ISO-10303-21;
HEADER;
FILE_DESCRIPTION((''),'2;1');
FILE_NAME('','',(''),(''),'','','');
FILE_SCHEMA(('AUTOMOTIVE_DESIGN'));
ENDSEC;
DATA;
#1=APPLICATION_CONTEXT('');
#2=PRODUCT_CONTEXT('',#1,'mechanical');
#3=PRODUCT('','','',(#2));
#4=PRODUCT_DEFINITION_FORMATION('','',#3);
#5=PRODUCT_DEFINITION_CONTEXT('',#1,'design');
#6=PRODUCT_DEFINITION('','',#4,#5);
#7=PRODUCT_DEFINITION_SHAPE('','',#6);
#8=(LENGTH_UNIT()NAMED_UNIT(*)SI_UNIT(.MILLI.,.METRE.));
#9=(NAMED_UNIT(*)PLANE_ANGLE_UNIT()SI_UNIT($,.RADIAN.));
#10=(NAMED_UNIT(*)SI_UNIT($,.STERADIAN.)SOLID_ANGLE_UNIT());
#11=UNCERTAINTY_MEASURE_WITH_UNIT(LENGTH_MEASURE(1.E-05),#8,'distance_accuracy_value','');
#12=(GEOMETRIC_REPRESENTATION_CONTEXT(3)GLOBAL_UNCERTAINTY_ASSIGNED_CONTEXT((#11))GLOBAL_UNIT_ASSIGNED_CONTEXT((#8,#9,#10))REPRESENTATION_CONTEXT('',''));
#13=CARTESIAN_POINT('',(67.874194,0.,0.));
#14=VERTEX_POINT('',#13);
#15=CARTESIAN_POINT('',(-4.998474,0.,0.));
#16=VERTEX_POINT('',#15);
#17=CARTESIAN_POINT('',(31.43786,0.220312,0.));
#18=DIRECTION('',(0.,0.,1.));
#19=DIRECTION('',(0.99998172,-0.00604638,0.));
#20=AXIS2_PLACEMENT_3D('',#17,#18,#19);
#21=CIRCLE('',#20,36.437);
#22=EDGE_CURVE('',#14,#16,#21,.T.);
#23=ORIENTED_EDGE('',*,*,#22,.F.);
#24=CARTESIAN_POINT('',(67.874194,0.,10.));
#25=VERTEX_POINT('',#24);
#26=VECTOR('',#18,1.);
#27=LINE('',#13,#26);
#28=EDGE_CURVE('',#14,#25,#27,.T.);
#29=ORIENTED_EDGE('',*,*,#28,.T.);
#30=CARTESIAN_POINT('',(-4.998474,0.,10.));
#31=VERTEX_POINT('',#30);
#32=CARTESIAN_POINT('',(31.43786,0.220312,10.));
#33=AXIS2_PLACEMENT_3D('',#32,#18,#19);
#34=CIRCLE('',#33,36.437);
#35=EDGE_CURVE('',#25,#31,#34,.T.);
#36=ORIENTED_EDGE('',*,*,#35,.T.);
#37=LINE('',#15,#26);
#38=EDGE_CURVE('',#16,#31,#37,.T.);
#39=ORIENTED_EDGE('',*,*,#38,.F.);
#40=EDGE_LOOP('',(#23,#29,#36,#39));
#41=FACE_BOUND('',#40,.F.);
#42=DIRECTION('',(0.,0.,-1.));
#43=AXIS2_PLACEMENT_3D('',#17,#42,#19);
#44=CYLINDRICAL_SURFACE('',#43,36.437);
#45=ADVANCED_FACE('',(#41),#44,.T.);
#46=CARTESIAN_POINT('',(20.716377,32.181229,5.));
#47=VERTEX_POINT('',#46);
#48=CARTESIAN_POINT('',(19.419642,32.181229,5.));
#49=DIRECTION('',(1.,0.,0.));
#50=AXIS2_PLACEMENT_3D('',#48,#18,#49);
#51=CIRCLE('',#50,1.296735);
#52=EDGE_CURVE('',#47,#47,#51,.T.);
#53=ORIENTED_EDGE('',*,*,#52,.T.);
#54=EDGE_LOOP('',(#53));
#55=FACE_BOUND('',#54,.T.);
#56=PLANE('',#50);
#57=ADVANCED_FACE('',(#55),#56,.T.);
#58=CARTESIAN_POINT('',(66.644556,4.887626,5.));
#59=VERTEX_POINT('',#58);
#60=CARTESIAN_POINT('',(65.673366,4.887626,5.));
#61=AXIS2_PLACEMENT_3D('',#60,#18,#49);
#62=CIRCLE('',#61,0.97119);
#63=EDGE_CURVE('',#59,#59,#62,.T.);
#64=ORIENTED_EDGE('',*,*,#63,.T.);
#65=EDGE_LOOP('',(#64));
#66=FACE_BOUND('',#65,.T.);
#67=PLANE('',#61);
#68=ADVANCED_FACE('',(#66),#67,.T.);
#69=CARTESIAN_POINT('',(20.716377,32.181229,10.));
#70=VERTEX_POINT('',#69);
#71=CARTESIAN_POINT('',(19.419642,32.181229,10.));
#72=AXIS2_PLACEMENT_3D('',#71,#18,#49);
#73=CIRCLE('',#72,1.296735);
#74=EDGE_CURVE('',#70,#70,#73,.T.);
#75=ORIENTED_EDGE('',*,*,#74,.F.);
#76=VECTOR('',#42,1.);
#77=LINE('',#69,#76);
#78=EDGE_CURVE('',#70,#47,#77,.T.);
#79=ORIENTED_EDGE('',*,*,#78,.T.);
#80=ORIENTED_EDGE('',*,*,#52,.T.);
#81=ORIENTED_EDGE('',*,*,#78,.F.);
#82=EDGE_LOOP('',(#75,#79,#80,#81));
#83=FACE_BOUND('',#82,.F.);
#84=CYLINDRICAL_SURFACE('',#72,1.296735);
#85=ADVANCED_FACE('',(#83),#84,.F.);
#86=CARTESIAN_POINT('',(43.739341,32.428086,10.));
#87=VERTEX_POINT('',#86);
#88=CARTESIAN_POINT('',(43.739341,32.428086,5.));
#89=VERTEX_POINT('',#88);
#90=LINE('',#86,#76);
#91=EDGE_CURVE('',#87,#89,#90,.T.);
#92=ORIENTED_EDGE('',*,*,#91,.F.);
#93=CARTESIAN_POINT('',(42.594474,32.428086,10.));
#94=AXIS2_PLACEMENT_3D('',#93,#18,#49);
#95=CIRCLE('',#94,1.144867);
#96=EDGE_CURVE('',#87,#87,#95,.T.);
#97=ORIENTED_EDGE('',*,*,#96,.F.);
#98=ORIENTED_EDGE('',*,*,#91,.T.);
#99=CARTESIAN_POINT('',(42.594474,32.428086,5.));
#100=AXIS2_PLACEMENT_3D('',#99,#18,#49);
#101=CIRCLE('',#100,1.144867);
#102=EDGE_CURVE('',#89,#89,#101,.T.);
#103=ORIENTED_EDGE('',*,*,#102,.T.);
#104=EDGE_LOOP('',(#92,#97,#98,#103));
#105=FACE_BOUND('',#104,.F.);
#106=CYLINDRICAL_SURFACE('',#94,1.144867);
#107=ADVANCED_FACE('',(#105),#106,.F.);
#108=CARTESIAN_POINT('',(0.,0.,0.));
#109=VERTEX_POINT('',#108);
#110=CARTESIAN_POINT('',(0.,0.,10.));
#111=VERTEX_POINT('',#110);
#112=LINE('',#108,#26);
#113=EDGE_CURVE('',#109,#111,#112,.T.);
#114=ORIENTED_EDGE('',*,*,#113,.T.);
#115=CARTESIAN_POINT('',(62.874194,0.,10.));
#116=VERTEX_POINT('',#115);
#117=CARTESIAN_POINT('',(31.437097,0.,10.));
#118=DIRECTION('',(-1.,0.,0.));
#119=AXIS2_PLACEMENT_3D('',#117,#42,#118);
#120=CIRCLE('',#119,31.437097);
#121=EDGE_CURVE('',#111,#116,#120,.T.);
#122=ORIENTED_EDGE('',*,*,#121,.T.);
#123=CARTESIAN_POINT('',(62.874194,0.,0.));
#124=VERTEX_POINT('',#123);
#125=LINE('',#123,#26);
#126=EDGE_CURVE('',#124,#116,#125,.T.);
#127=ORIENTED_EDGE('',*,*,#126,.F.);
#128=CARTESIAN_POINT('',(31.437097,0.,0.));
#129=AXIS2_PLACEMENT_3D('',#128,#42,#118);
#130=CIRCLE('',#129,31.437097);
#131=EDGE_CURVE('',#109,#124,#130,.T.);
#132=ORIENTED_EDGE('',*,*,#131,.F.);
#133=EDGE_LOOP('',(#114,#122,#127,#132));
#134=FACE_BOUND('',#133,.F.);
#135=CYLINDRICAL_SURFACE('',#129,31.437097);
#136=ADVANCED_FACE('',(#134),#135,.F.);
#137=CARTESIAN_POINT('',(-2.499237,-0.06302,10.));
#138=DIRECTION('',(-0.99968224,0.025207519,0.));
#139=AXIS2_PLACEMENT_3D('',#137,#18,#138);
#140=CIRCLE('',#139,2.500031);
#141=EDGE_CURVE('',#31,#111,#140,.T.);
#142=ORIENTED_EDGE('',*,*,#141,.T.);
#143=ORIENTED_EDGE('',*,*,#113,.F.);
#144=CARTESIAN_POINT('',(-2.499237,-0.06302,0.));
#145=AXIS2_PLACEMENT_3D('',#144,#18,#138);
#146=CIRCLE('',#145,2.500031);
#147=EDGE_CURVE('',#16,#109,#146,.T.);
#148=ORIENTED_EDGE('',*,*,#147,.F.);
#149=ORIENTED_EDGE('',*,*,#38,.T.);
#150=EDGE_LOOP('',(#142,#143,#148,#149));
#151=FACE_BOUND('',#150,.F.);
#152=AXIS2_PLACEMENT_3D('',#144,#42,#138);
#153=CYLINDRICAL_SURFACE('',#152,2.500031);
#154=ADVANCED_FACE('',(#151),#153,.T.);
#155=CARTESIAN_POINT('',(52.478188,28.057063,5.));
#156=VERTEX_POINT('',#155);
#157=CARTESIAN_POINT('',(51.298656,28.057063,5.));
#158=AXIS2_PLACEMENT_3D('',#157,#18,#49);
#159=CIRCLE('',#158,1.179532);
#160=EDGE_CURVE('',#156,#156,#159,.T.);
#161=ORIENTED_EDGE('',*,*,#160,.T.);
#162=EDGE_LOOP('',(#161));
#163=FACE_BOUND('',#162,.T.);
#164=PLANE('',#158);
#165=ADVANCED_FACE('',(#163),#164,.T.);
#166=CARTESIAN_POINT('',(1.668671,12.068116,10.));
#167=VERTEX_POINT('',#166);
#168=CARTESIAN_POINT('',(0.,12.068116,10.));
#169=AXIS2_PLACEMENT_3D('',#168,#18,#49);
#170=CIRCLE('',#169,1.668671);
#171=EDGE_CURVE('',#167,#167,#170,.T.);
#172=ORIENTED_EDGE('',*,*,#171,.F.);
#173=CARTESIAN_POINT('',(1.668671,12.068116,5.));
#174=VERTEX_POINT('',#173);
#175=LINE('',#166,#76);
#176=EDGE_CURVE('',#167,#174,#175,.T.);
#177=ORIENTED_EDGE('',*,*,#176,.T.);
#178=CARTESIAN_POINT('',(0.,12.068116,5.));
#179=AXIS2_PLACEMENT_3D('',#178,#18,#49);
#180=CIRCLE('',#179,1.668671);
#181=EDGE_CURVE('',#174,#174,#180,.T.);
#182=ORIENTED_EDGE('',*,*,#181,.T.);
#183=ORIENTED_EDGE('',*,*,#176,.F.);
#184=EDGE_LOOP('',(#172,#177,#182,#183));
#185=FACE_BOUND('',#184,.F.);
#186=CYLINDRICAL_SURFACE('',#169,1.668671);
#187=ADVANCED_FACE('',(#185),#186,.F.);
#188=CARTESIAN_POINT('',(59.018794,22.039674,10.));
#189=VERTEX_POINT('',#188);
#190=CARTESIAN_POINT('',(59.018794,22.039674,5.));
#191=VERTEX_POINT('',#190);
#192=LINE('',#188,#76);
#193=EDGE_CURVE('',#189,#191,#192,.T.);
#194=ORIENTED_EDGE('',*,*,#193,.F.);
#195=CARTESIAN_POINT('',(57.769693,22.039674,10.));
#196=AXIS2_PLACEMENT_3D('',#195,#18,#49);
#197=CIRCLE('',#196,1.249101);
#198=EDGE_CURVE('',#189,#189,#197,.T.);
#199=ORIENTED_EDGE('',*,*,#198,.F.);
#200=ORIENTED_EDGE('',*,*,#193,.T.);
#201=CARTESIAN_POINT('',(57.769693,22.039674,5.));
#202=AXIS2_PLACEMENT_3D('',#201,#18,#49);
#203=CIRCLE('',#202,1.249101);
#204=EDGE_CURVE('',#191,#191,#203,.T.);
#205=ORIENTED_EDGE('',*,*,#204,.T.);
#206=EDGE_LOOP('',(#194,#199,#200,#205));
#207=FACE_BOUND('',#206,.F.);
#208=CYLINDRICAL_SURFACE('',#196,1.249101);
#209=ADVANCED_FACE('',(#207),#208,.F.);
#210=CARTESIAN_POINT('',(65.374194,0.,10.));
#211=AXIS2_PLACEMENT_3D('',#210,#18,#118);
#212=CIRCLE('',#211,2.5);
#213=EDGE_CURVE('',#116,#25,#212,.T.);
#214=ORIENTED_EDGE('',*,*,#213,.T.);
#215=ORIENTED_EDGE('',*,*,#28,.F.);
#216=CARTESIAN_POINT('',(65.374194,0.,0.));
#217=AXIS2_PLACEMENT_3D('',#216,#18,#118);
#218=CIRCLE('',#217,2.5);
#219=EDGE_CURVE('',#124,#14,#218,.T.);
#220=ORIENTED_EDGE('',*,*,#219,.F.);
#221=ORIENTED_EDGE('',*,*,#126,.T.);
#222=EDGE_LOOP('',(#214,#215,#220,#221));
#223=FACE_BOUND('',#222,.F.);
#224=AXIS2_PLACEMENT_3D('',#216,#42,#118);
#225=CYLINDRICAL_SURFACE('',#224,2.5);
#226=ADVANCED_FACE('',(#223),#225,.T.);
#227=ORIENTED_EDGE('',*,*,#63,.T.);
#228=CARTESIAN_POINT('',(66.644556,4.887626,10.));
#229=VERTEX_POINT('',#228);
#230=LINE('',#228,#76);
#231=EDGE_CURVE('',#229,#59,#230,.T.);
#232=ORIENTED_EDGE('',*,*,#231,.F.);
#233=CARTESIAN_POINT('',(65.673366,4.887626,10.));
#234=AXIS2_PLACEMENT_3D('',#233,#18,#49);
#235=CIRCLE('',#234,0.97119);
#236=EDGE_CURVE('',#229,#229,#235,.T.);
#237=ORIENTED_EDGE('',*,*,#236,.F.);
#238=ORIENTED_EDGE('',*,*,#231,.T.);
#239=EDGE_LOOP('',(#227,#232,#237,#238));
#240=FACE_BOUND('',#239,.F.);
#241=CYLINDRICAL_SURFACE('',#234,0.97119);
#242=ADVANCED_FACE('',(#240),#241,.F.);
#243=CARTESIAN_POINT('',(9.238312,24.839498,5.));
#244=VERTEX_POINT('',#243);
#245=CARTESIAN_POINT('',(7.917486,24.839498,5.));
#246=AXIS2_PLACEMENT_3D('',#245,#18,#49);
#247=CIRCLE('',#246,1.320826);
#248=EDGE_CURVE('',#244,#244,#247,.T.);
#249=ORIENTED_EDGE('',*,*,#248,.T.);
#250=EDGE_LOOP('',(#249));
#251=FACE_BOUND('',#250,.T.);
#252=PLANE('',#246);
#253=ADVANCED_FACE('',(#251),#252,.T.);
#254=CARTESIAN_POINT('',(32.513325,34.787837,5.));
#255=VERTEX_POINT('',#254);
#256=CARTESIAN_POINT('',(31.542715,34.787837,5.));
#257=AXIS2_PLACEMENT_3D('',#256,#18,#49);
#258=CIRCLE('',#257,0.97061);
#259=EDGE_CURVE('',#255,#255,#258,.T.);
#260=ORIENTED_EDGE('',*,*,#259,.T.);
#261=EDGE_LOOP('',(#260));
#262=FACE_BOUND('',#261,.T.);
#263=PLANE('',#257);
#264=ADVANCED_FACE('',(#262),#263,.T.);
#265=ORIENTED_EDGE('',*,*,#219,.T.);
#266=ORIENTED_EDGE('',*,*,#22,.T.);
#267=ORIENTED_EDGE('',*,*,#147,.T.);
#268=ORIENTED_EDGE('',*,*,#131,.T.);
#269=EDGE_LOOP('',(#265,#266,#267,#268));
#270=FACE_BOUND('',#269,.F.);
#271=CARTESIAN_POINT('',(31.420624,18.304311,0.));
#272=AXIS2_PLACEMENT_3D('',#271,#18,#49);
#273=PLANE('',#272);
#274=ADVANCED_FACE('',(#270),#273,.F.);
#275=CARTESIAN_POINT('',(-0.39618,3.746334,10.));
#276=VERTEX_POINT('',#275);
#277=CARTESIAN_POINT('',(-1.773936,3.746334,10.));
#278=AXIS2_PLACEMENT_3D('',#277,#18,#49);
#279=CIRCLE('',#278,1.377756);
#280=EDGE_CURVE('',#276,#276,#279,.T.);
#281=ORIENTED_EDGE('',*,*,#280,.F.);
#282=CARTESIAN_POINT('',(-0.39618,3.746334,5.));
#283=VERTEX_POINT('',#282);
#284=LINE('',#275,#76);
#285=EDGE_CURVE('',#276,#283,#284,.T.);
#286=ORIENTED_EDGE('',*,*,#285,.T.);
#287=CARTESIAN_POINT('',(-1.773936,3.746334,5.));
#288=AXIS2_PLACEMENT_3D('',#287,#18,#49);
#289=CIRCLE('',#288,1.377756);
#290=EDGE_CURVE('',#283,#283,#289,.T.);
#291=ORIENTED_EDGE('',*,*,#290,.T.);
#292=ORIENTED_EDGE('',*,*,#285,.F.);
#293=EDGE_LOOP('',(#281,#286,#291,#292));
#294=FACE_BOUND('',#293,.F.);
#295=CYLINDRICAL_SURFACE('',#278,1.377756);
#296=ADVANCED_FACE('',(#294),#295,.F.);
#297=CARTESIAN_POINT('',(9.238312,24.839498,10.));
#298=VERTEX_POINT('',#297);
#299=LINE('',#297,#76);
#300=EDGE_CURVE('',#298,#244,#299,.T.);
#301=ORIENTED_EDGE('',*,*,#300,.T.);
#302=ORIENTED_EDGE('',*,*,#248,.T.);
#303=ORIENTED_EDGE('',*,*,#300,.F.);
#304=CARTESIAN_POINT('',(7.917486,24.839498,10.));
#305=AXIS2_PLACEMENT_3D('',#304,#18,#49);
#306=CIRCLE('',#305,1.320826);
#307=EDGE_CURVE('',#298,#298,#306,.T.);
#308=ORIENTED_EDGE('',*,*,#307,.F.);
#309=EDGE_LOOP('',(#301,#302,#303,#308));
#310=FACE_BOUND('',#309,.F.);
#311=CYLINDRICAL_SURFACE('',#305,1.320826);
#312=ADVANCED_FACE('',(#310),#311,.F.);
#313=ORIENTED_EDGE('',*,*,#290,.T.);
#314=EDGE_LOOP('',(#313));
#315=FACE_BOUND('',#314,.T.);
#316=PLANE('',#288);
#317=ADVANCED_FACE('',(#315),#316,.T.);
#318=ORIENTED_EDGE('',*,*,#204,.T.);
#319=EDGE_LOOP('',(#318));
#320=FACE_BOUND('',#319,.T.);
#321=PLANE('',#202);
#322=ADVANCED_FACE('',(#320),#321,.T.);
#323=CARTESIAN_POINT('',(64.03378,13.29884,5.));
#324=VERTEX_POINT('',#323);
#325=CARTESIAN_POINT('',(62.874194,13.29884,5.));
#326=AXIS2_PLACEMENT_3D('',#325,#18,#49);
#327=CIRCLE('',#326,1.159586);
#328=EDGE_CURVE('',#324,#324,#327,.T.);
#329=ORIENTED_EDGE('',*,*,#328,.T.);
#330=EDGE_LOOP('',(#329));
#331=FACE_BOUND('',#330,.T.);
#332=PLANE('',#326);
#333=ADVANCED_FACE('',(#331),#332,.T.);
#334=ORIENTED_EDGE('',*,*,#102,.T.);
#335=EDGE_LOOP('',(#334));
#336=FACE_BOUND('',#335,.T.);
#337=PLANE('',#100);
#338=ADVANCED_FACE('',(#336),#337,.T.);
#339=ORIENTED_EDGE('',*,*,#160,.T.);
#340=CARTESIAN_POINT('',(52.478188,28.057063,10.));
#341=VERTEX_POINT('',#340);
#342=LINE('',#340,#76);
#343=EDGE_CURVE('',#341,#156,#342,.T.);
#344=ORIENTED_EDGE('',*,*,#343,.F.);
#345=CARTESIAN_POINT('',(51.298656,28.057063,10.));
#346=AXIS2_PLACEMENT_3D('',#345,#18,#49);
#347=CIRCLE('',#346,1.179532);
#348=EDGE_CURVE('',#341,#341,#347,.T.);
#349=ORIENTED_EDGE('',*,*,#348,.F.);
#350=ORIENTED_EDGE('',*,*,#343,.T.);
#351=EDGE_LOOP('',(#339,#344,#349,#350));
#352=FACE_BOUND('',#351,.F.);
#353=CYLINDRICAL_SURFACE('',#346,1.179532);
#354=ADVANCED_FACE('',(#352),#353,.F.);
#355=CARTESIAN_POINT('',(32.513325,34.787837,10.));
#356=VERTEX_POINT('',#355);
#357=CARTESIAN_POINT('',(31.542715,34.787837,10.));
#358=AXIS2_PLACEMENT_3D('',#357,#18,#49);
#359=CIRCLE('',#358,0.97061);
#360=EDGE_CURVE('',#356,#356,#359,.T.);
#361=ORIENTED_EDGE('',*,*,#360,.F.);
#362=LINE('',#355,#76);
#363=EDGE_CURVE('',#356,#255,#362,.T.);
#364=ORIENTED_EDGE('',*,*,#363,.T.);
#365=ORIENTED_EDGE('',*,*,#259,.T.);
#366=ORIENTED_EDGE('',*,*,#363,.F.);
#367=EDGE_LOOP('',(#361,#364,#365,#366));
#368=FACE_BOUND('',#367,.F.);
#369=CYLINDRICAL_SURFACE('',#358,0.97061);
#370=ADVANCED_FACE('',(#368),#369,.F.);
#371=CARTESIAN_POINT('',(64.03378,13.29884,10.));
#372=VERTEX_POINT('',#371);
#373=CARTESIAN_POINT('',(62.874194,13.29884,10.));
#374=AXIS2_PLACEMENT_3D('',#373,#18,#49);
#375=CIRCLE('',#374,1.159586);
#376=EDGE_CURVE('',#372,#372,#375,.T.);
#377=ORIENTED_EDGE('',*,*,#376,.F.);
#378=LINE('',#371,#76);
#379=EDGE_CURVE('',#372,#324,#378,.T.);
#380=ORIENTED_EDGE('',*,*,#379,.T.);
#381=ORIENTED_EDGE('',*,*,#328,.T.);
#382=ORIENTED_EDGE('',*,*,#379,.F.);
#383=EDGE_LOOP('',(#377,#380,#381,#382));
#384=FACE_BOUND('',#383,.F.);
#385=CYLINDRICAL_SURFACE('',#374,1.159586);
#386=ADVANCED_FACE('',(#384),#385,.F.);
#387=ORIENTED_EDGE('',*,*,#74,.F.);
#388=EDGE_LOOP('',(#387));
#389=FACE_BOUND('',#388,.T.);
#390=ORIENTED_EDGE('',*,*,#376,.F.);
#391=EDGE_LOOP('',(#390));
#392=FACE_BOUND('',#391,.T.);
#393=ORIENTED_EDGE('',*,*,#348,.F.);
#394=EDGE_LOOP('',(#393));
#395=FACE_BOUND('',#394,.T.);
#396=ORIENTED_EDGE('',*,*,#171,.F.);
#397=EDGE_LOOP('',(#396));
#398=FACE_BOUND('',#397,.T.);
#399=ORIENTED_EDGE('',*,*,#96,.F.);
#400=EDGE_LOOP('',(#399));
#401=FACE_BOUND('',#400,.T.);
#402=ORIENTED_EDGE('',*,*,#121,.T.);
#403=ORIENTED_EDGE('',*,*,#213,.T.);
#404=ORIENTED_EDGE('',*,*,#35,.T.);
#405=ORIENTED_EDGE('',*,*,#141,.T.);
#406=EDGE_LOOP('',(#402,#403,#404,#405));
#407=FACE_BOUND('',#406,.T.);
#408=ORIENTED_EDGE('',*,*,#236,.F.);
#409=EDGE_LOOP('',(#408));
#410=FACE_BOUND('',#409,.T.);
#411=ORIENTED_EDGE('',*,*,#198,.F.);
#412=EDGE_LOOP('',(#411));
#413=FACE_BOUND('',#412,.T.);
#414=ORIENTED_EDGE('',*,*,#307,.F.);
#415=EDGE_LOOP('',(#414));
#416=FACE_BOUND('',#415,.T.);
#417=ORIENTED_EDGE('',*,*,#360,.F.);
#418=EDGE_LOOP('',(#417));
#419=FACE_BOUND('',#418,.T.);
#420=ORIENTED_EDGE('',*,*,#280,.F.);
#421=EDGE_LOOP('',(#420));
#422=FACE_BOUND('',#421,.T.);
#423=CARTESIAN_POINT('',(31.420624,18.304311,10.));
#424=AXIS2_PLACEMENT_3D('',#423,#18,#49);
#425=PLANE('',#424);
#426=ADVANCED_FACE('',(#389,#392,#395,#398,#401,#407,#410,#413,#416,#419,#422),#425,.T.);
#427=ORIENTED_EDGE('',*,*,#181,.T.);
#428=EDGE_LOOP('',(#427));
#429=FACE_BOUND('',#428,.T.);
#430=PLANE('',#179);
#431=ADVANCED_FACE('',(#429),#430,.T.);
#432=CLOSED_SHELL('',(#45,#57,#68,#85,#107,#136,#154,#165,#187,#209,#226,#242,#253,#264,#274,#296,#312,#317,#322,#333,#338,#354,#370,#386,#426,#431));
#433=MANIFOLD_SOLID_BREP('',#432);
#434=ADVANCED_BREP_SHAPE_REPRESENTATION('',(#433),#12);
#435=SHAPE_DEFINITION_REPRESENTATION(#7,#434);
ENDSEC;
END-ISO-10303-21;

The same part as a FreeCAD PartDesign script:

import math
import FreeCAD as App
import Part
import Sketcher

doc = App.newDocument("Part")
params = doc.addObject("Spreadsheet::Sheet", "Params")
for row, (alias, value) in enumerate([
    ("sketch1_radius", "2.5 mm"),
    ("pad1_length", "10 mm"),
    ("pocket1_length", "5 mm"),
], start=1):
    params.set(f"A{row}", alias)
    params.set(f"B{row}", "=" + value)
    params.setAlias(f"B{row}", alias)

body = doc.addObject("PartDesign::Body", "Body")

sketch1 = doc.addObject("Sketcher::SketchObject", "Sketch")
body.addObject(sketch1)
sketch1.AttachmentSupport = (doc.XY_Plane, [""])
sketch1.MapMode = "FlatFace"
sketch1.addGeometry([
    Part.ArcOfCircle(Part.Circle(App.Vector(31.437097, 0, 0), App.Vector(0, 0, 1), 31.437097), math.radians(0), math.radians(180)),
    Part.ArcOfCircle(Part.Circle(App.Vector(65.374194, 0, 0), App.Vector(0, 0, 1), 2.5), math.radians(180), math.radians(360)),
    Part.ArcOfCircle(Part.Circle(App.Vector(31.43786, 0.220312, 0), App.Vector(0, 0, 1), 36.437), math.radians(-0.346434), math.radians(180.346434)),
    Part.ArcOfCircle(Part.Circle(App.Vector(-2.499237, -0.06302, 0), App.Vector(0, 0, 1), 2.500031), math.radians(178.555563), math.radians(361.444437)),
], False)
sketch1.addConstraint([
    Sketcher.Constraint("Tangent", 0, 1, 1, 1),
    Sketcher.Constraint("Coincident", 1, 2, 2, 1),
    Sketcher.Constraint("Coincident", 2, 2, 3, 1),
    Sketcher.Constraint("Coincident", 3, 2, 0, 2),
    Sketcher.Constraint("Coincident", 3, 2, -1, 1),
    Sketcher.Constraint("PointOnObject", 0, 3, -1),
    Sketcher.Constraint("PointOnObject", 1, 3, -1),
    Sketcher.Constraint("PointOnObject", 1, 2, -1),
    Sketcher.Constraint("PointOnObject", 2, 2, -1),
    Sketcher.Constraint("Radius", 1, 2.5),
    Sketcher.Constraint("Radius", 2, 36.437),
    Sketcher.Constraint("Radius", 3, 2.500031),
    Sketcher.Constraint("Radius", 0, 31.437097),
    Sketcher.Constraint("DistanceX", -1, 1, 2, 3, 31.43786),
])
sketch1.setExpression("Constraints[9]", "Params.sketch1_radius")
pad1 = doc.addObject("PartDesign::Pad", "Pad")
body.addObject(pad1)
pad1.Profile = sketch1
pad1.setExpression("Length", "Params.pad1_length")

sketch2 = doc.addObject("Sketcher::SketchObject", "Sketch001")
body.addObject(sketch2)
sketch2.AttachmentSupport = (doc.XY_Plane, [""])
sketch2.MapMode = "FlatFace"
sketch2.AttachmentOffset = App.Placement(App.Vector(0, 0, 10), App.Rotation())
sketch2.addGeometry([
    Part.Circle(App.Vector(0, 12.068116, 0), App.Vector(0, 0, 1), 1.668671),
    Part.Circle(App.Vector(7.917486, 24.839498, 0), App.Vector(0, 0, 1), 1.320826),
    Part.Circle(App.Vector(19.419642, 32.181229, 0), App.Vector(0, 0, 1), 1.296735),
    Part.Circle(App.Vector(31.542715, 34.787837, 0), App.Vector(0, 0, 1), 0.97061),
    Part.Circle(App.Vector(42.594474, 32.428086, 0), App.Vector(0, 0, 1), 1.144867),
    Part.Circle(App.Vector(51.298656, 28.057063, 0), App.Vector(0, 0, 1), 1.179532),
    Part.Circle(App.Vector(57.769693, 22.039674, 0), App.Vector(0, 0, 1), 1.249101),
    Part.Circle(App.Vector(62.874194, 13.29884, 0), App.Vector(0, 0, 1), 1.159586),
    Part.Circle(App.Vector(65.673366, 4.887626, 0), App.Vector(0, 0, 1), 0.97119),
    Part.Circle(App.Vector(-1.773936, 3.746334, 0), App.Vector(0, 0, 1), 1.377756),
], False)
sketch2.addConstraint([
    Sketcher.Constraint("PointOnObject", 0, 3, -2),
    Sketcher.Constraint("Diameter", 6, 2.498202),
    Sketcher.Constraint("Diameter", 0, 3.337342),
    Sketcher.Constraint("Diameter", 2, 2.59347),
    Sketcher.Constraint("Diameter", 3, 1.94122),
    Sketcher.Constraint("Diameter", 7, 2.319172),
    Sketcher.Constraint("Diameter", 8, 1.94238),
    Sketcher.Constraint("Diameter", 9, 2.755512),
    Sketcher.Constraint("Diameter", 1, 2.641652),
    Sketcher.Constraint("Diameter", 4, 2.289734),
    Sketcher.Constraint("Diameter", 5, 2.359064),
    Sketcher.Constraint("DistanceX", 6, 3, 7, 3, 5.104501),
    Sketcher.Constraint("DistanceX", -1, 1, 2, 3, 19.419642),
    Sketcher.Constraint("DistanceY", -1, 1, 2, 3, 32.181229),
    Sketcher.Constraint("DistanceY", -1, 1, 7, 3, 13.29884),
    Sketcher.Constraint("DistanceY", 0, 3, 1, 3, 12.771382),
    Sketcher.Constraint("DistanceY", 1, 3, 2, 3, 7.341731),
    Sketcher.Constraint("DistanceY", 2, 3, 3, 3, 2.606608),
    Sketcher.Constraint("DistanceX", 1, 3, 3, 3, 23.625229),
    Sketcher.Constraint("DistanceX", 3, 3, 4, 3, 11.051759),
    Sketcher.Constraint("DistanceY", 4, 3, 3, 3, 2.359751),
    Sketcher.Constraint("DistanceX", 2, 3, 4, 3, 23.174832),
    Sketcher.Constraint("DistanceX", 3, 3, 5, 3, 19.755941),
    Sketcher.Constraint("DistanceY", 6, 3, 5, 3, 6.017389),
    Sketcher.Constraint("DistanceX", 4, 3, 6, 3, 15.175219),
    Sketcher.Constraint("DistanceY", 6, 3, 4, 3, 10.388412),
    Sketcher.Constraint("DistanceX", 7, 3, 8, 3, 2.799172),
    Sketcher.Constraint("DistanceY", 8, 3, 6, 3, 17.152048),
    Sketcher.Constraint("DistanceY", 9, 3, 0, 3, 8.321782),
    Sketcher.Constraint("DistanceX", 9, 3, 1, 3, 9.691422),
])
pocket1 = doc.addObject("PartDesign::Pocket", "Pocket")
body.addObject(pocket1)
pocket1.Profile = sketch2
pocket1.setExpression("Length", "Params.pocket1_length")

doc.recompute()
